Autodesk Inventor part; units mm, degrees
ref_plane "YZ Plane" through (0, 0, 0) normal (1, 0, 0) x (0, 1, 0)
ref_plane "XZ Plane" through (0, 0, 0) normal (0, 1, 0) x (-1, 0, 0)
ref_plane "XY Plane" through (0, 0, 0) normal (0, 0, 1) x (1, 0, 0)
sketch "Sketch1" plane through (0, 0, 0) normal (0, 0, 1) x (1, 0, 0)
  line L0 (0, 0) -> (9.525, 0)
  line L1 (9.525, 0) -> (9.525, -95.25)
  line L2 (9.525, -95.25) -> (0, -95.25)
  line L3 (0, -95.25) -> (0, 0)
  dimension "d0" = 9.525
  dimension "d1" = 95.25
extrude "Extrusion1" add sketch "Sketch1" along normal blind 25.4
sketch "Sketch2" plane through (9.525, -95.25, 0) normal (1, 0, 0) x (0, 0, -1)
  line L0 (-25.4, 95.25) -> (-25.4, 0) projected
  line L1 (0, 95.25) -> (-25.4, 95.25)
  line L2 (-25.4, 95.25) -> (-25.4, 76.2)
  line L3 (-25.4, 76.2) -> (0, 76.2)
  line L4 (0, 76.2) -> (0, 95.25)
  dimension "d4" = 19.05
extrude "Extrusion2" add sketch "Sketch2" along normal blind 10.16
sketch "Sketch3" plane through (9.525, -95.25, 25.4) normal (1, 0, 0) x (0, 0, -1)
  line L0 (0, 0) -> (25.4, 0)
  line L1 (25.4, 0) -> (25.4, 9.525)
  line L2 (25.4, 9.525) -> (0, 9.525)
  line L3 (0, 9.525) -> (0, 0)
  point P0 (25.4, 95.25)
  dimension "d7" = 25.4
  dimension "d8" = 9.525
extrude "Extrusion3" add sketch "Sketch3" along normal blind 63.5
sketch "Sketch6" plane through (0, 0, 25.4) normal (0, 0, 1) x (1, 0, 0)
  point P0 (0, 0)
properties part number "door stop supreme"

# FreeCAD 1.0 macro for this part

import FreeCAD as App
import Part
import Sketcher
Q = App.Units.Quantity


def add_polygon(sketch, points):
    """Adds a closed chain of lines whose ends are joined by coincident constraints."""
    first, n = sketch.GeometryCount, len(points)
    for a, b in zip(points, points[1:] + points[:1]):
        sketch.addGeometry(Part.LineSegment(App.Vector(*a, 0), App.Vector(*b, 0)), False)
    for i in range(n):
        sketch.addConstraint(Sketcher.Constraint("Coincident", first + i, 2, first + (i + 1) % n, 1))

doc = App.newDocument("Part")
body = doc.addObject("PartDesign::Body", "Body")

sketch1 = body.newObject("Sketcher::SketchObject", "Sketch")
sketch1.AttachmentSupport = (doc.getObject("XY_Plane"), [""])
sketch1.MapMode = "FlatFace"
add_polygon(sketch1, [(9.525, 0), (0, 0), (0, -95.25), (9.525, -95.25)])
sketch1.addConstraint(Sketcher.Constraint("Horizontal", 0))
sketch1.addConstraint(Sketcher.Constraint("Vertical", 1))
sketch1.addConstraint(Sketcher.Constraint("Horizontal", 2))
sketch1.addConstraint(Sketcher.Constraint("Vertical", 3))
sketch1.addConstraint(Sketcher.Constraint("Coincident", 0, 2, -1, 1))
sketch1.addConstraint(Sketcher.Constraint("DistanceY", 1, 2, 1, 1, Q("3.75 in")))
sketch1.addConstraint(Sketcher.Constraint("DistanceX", 0, 2, 0, 1, Q("0.375 in")))
pad1 = body.newObject("PartDesign::Pad", "Pad")
pad1.Profile = sketch1
pad1.Length = Q("1 in")

sketch2 = body.newObject("Sketcher::SketchObject", "Sketch001")
sketch2.AttachmentSupport = (doc.getObject("YZ_Plane"), [""])
sketch2.MapMode = "FlatFace"
sketch2.AttachmentOffset = App.Placement(App.Vector(0, 0, 0.375 * 25.4), App.Rotation())
add_polygon(sketch2, [(0, 0), (0, 25.4), (-19.05, 25.4), (-19.05, 0)])
sketch2.addConstraint(Sketcher.Constraint("Vertical", 0))
sketch2.addConstraint(Sketcher.Constraint("Horizontal", 1))
sketch2.addConstraint(Sketcher.Constraint("Vertical", 2))
sketch2.addConstraint(Sketcher.Constraint("Horizontal", 3))
sketch2.addConstraint(Sketcher.Constraint("Coincident", 3, 2, -1, 1))
sketch2.addConstraint(Sketcher.Constraint("DistanceX", 1, 2, 1, 1, Q("0.75 in")))
sketch2.addConstraint(Sketcher.Constraint("DistanceY", 0, 1, 0, 2, Q("1 in")))
pad2 = body.newObject("PartDesign::Pad", "Pad001")
pad2.Profile = sketch2
pad2.Length = Q("0.4 in")

sketch3 = body.newObject("Sketcher::SketchObject", "Sketch002")
sketch3.AttachmentSupport = (doc.getObject("YZ_Plane"), [""])
sketch3.MapMode = "FlatFace"
sketch3.AttachmentOffset = App.Placement(App.Vector(0, 0, 0.375 * 25.4), App.Rotation())
add_polygon(sketch3, [(-85.725, 25.4), (-95.25, 25.4), (-95.25, 0), (-85.725, 0)])
sketch3.addConstraint(Sketcher.Constraint("Horizontal", 0))
sketch3.addConstraint(Sketcher.Constraint("Vertical", 1))
sketch3.addConstraint(Sketcher.Constraint("Horizontal", 2))
sketch3.addConstraint(Sketcher.Constraint("Vertical", 3))
sketch3.addConstraint(Sketcher.Constraint("PointOnObject", 1, 2, -1))
sketch3.addConstraint(Sketcher.Constraint("DistanceY", 1, 2, 1, 1, Q("1 in")))
sketch3.addConstraint(Sketcher.Constraint("DistanceX", 0, 2, 0, 1, Q("0.375 in")))
sketch3.addConstraint(Sketcher.Constraint("DistanceX", 0, 2, -1, 1, Q("3.75 in")))
pad3 = body.newObject("PartDesign::Pad", "Pad002")
pad3.Profile = sketch3
pad3.Length = Q("2.5 in")

doc.recompute()
